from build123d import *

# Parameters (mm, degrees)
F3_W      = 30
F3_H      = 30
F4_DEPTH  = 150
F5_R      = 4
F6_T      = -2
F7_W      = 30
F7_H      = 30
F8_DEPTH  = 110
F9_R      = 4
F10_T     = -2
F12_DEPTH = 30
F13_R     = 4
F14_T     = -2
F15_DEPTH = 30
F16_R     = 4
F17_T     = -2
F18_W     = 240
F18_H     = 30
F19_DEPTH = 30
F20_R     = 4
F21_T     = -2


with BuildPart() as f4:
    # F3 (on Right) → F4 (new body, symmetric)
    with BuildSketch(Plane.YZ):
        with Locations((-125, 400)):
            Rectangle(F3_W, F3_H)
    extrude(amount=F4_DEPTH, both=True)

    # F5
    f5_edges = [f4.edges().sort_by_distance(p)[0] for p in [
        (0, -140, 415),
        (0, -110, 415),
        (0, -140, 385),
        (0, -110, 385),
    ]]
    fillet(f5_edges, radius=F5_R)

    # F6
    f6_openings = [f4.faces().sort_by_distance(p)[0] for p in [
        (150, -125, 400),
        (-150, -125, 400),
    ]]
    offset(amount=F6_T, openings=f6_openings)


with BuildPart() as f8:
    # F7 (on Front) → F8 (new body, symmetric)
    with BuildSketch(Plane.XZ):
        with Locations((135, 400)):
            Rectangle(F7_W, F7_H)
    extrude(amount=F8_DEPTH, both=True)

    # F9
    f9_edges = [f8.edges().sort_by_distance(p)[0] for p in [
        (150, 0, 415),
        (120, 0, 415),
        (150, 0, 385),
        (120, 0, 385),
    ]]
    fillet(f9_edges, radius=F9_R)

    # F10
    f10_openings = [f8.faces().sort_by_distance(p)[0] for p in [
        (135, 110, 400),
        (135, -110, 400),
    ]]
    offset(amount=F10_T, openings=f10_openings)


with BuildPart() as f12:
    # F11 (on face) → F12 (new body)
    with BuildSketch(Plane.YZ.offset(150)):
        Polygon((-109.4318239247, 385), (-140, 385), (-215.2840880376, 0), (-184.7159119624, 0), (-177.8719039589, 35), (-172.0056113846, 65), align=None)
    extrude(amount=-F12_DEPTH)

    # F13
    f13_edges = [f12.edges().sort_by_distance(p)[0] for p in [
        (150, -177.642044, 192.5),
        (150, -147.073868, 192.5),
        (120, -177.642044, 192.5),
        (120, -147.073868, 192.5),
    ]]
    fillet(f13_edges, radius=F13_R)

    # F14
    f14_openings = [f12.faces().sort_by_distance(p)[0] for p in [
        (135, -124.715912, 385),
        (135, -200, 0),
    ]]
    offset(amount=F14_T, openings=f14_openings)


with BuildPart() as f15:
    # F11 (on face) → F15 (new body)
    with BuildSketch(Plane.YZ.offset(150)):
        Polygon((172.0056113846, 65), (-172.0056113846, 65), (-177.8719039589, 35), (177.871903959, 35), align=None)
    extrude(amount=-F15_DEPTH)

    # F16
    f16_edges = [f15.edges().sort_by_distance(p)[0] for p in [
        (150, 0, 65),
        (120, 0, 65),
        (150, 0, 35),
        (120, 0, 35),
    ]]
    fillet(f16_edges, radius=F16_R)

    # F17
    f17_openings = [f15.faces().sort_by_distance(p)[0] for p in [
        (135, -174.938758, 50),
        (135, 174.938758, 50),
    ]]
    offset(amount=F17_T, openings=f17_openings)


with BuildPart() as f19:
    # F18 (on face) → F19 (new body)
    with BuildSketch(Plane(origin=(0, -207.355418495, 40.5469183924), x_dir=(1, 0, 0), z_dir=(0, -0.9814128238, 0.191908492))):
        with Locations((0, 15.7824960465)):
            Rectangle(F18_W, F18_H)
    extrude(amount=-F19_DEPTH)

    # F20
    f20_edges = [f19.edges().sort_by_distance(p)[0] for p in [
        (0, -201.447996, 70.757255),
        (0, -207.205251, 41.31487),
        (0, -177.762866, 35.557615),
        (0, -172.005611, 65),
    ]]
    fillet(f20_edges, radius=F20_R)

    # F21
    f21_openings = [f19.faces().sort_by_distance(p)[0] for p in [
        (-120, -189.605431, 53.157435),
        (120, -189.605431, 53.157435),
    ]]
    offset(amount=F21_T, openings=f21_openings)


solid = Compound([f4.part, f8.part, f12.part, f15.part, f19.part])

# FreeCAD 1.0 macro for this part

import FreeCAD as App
import Part
import Sketcher

V = App.Vector
Q = App.Units.Quantity


def edges_at(feature, points):
    """Names of the edges that pass closest to the given points."""
    edges = feature.Shape.Edges
    near = lambda p: min(range(len(edges)), key=lambda i: edges[i].distToShape(Part.Vertex(*p))[0])
    return sorted({f"Edge{near(p) + 1}" for p in points})


def faces_at(feature, points):
    """Names of the faces that lie closest to the given points."""
    faces = feature.Shape.Faces
    near = lambda p: min(range(len(faces)), key=lambda i: faces[i].distToShape(Part.Vertex(*p))[0])
    return sorted({f"Face{near(p) + 1}" for p in points})

doc = App.newDocument("Part")
body = doc.addObject("PartDesign::Body", "Body")

sketch1 = body.newObject("Sketcher::SketchObject", "Sketch")
sketch1.AttachmentSupport = (doc.getObject("YZ_Plane"), [""])
sketch1.MapMode = "FlatFace"
sketch1.addGeometry([
    Part.LineSegment(V(-140, 415, 0), V(-140, 385, 0)),
    Part.LineSegment(V(-140, 385, 0), V(-110, 385, 0)),
    Part.LineSegment(V(-110, 385, 0), V(-110, 415, 0)),
    Part.LineSegment(V(-110, 415, 0), V(-140, 415, 0)),
], False)
sketch1.addConstraint([
    Sketcher.Constraint("Coincident", 0, 2, 1, 1),
    Sketcher.Constraint("Coincident", 1, 2, 2, 1),
    Sketcher.Constraint("Coincident", 2, 2, 3, 1),
    Sketcher.Constraint("Coincident", 3, 2, 0, 1),
    Sketcher.Constraint("Vertical", 0),
    Sketcher.Constraint("Horizontal", 1),
    Sketcher.Constraint("Vertical", 2),
    Sketcher.Constraint("Horizontal", 3),
    Sketcher.Constraint("Equal", 3, 0),
    Sketcher.Constraint("DistanceX", 1, 1, 1, 2, Q("30 mm")),
    Sketcher.Constraint("DistanceX", 0, 2, -1, 1, Q("140 mm")),
    Sketcher.Constraint("DistanceY", -1, 1, 0, 2, Q("385 mm")),
])
pad1 = body.newObject("PartDesign::Pad", "Pad")
pad1.Profile = sketch1
pad1.Length = 300
pad1.Midplane = True
doc.recompute()

fillet = body.newObject("PartDesign::Fillet", "Fillet")
fillet.Base = (pad1, edges_at(pad1, [
    (0, -140, 415),
    (0, -110, 415),
    (0, -140, 385),
    (0, -110, 385),
]))
fillet.Radius = 4
doc.recompute()

thickness = body.newObject("PartDesign::Thickness", "Thickness")
thickness.Base = (fillet, faces_at(fillet, [(150, -125, 400), (-150, -125, 400)]))
thickness.Value = 2
thickness.Reversed = True
thickness.Join = "Arc"
body2 = doc.addObject("PartDesign::Body", "Body001")

sketch2 = body2.newObject("Sketcher::SketchObject", "Sketch001")
sketch2.AttachmentSupport = (doc.getObject("XZ_Plane001"), [""])
sketch2.MapMode = "FlatFace"
sketch2.addGeometry([
    Part.LineSegment(V(120, 415, 0), V(120, 385, 0)),
    Part.LineSegment(V(120, 385, 0), V(150, 385, 0)),
    Part.LineSegment(V(150, 385, 0), V(150, 415, 0)),
    Part.LineSegment(V(150, 415, 0), V(120, 415, 0)),
], False)
sketch2.addConstraint([
    Sketcher.Constraint("Coincident", 0, 2, 1, 1),
    Sketcher.Constraint("Coincident", 1, 2, 2, 1),
    Sketcher.Constraint("Coincident", 2, 2, 3, 1),
    Sketcher.Constraint("Coincident", 3, 2, 0, 1),
    Sketcher.Constraint("Vertical", 0),
    Sketcher.Constraint("Horizontal", 1),
    Sketcher.Constraint("Vertical", 2),
    Sketcher.Constraint("Horizontal", 3),
    Sketcher.Constraint("Equal", 3, 0),
    Sketcher.Constraint("DistanceX", 1, 1, 1, 2, Q("30 mm")),
    Sketcher.Constraint("DistanceX", -1, 1, 0, 2, Q("120 mm")),
    Sketcher.Constraint("DistanceY", -1, 1, 0, 2, Q("385 mm")),
])
pad2 = body2.newObject("PartDesign::Pad", "Pad001")
pad2.Profile = sketch2
pad2.Length = 220
pad2.Midplane = True
doc.recompute()

fillet2 = body2.newObject("PartDesign::Fillet", "Fillet001")
fillet2.Base = (pad2, edges_at(pad2, [
    (150, 0, 415),
    (120, 0, 415),
    (150, 0, 385),
    (120, 0, 385),
]))
fillet2.Radius = 4
doc.recompute()

thickness2 = body2.newObject("PartDesign::Thickness", "Thickness001")
thickness2.Base = (fillet2, faces_at(fillet2, [(135, 110, 400), (135, -110, 400)]))
thickness2.Value = 2
thickness2.Reversed = True
thickness2.Join = "Arc"
body3 = doc.addObject("PartDesign::Body", "Body002")

sketch3 = body3.newObject("Sketcher::SketchObject", "Sketch002")
sketch3.AttachmentSupport = (doc.getObject("YZ_Plane002"), [""])
sketch3.MapMode = "FlatFace"
sketch3.AttachmentOffset = App.Placement(V(0, 0, 150), App.Rotation())
sketch3.addGeometry([
    Part.LineSegment(V(-109, 385, 0), V(-140, 385, 0)),
    Part.LineSegment(V(-140, 385, 0), V(-215, 0, 0)),
    Part.LineSegment(V(-215, 0, 0), V(-185, 0, 0)),
    Part.LineSegment(V(-185, 0, 0), V(-178, 35, 0)),
    Part.LineSegment(V(-178, 35, 0), V(-172, 65, 0)),
    Part.LineSegment(V(-172, 65, 0), V(-109, 385, 0)),
], False)
sketch3.addConstraint([
    Sketcher.Constraint("Coincident", 0, 2, 1, 1),
    Sketcher.Constraint("Coincident", 1, 2, 2, 1),
    Sketcher.Constraint("Coincident", 2, 2, 3, 1),
    Sketcher.Constraint("Coincident", 3, 2, 4, 1),
    Sketcher.Constraint("Coincident", 4, 2, 5, 1),
    Sketcher.Constraint("Coincident", 5, 2, 0, 1),
    Sketcher.Constraint("Horizontal", 0),
    Sketcher.Constraint("Horizontal", 2),
    Sketcher.Constraint("PointOnObject", 1, 2, -1),
    Sketcher.Constraint("Parallel", 1, 3),
    Sketcher.Constraint("Parallel", 3, 4),
    Sketcher.Constraint("Parallel", 4, 5),
    Sketcher.Constraint("DistanceX", 0, 2, -1, 1, Q("140 mm")),
    Sketcher.Constraint("DistanceY", -1, 1, 0, 2, Q("385 mm")),
    Sketcher.Constraint("DistanceY", -1, 1, 3, 2, Q("35 mm")),
    Sketcher.Constraint("DistanceY", -1, 1, 4, 2, Q("65 mm")),
    Sketcher.Constraint("DistanceX", 2, 2, 4, 2, Q("12.710301 mm")),
    Sketcher.Constraint("DistanceX", 0, 2, 0, 1, Q("30.568176 mm")),
])
pad3 = body3.newObject("PartDesign::Pad", "Pad002")
pad3.Profile = sketch3
pad3.Length = 30
pad3.Reversed = True
doc.recompute()

fillet3 = body3.newObject("PartDesign::Fillet", "Fillet002")
fillet3.Base = (pad3, edges_at(pad3, [
    (150, -177.642, 192.5),
    (150, -140.719, 225),
    (120, -177.642, 192.5),
    (120, -140.719, 225),
]))
fillet3.Radius = 4
doc.recompute()

thickness3 = body3.newObject("PartDesign::Thickness", "Thickness002")
thickness3.Base = (fillet3, faces_at(fillet3, [(135, -124.716, 385), (135, -200, 0)]))
thickness3.Value = 2
thickness3.Reversed = True
thickness3.Join = "Arc"
body4 = doc.addObject("PartDesign::Body", "Body003")

sketch4 = body4.newObject("Sketcher::SketchObject", "Sketch003")
sketch4.AttachmentSupport = (doc.getObject("YZ_Plane003"), [""])
sketch4.MapMode = "FlatFace"
sketch4.AttachmentOffset = App.Placement(V(0, 0, 150), App.Rotation())
sketch4.addGeometry([
    Part.LineSegment(V(172, 65, 0), V(-172, 65, 0)),
    Part.LineSegment(V(-172, 65, 0), V(-178, 35, 0)),
    Part.LineSegment(V(-178, 35, 0), V(178, 35, 0)),
    Part.LineSegment(V(178, 35, 0), V(172, 65, 0)),
], False)
sketch4.addConstraint([
    Sketcher.Constraint("Coincident", 0, 2, 1, 1),
    Sketcher.Constraint("Coincident", 1, 2, 2, 1),
    Sketcher.Constraint("Coincident", 2, 2, 3, 1),
    Sketcher.Constraint("Coincident", 3, 2, 0, 1),
    Sketcher.Constraint("Horizontal", 0),
    Sketcher.Constraint("Horizontal", 2),
    Sketcher.Constraint("Equal", 1, 3),
    Sketcher.Constraint("DistanceY", -1, 1, 0, 2, Q("65 mm")),
    Sketcher.Constraint("DistanceY", -1, 1, 1, 2, Q("35 mm")),
    Sketcher.Constraint("DistanceX", 0, 2, 0, 1, Q("344.011223 mm")),
    Sketcher.Constraint("DistanceX", 2, 1, 2, 2, Q("355.743808 mm")),
    Sketcher.Constraint("DistanceX", 0, 2, -1, 1, Q("172.005611 mm")),
])
pad4 = body4.newObject("PartDesign::Pad", "Pad003")
pad4.Profile = sketch4
pad4.Length = 30
pad4.Reversed = True
doc.recompute()

fillet4 = body4.newObject("PartDesign::Fillet", "Fillet003")
fillet4.Base = (pad4, edges_at(pad4, [
    (150, 0, 65),
    (120, 0, 65),
    (150, 0, 35),
    (120, 0, 35),
]))
fillet4.Radius = 4
doc.recompute()

thickness4 = body4.newObject("PartDesign::Thickness", "Thickness003")
thickness4.Base = (fillet4, faces_at(fillet4, [(135, -174.939, 50), (135, 174.939, 50)]))
thickness4.Value = 2
thickness4.Reversed = True
thickness4.Join = "Arc"
body5 = doc.addObject("PartDesign::Body", "Body004")

sketch5 = body5.newObject("Sketcher::SketchObject", "Sketch004")
sketch5.Placement = App.Placement(V(0, -207.355418, 40.546918), App.Rotation(V(1, 0, 0), V(0, 0.191908492, 0.981412824), V(0, -0.981412824, 0.191908492), "ZXY"))
sketch5.addGeometry([
    Part.LineSegment(V(-120, 31, 0), V(-120, 1, 0)),
    Part.LineSegment(V(-120, 1, 0), V(120, 1, 0)),
    Part.LineSegment(V(120, 1, 0), V(120, 31, 0)),
    Part.LineSegment(V(120, 31, 0), V(-120, 31, 0)),
], False)
sketch5.addConstraint([
    Sketcher.Constraint("Coincident", 0, 2, 1, 1),
    Sketcher.Constraint("Coincident", 1, 2, 2, 1),
    Sketcher.Constraint("Coincident", 2, 2, 3, 1),
    Sketcher.Constraint("Coincident", 3, 2, 0, 1),
    Sketcher.Constraint("Vertical", 0),
    Sketcher.Constraint("Horizontal", 1),
    Sketcher.Constraint("Vertical", 2),
    Sketcher.Constraint("Horizontal", 3),
    Sketcher.Constraint("DistanceX", 1, 1, 1, 2, Q("240 mm")),
    Sketcher.Constraint("DistanceY", 0, 2, 0, 1, Q("30 mm")),
    Sketcher.Constraint("DistanceX", 0, 2, -1, 1, Q("120 mm")),
    Sketcher.Constraint("DistanceY", -1, 1, 0, 2, Q("0.782496 mm")),
])
pad5 = body5.newObject("PartDesign::Pad", "Pad004")
pad5.Profile = sketch5
pad5.Length = 30
pad5.Reversed = True
doc.recompute()

fillet5 = body5.newObject("PartDesign::Fillet", "Fillet004")
fillet5.Base = (pad5, edges_at(pad5, [
    (0, -201.448, 70.757),
    (0, -207.205, 41.315),
    (0, -177.763, 35.558),
    (0, -172.006, 65),
]))
fillet5.Radius = 4
doc.recompute()

thickness5 = body5.newObject("PartDesign::Thickness", "Thickness004")
thickness5.Base = (fillet5, faces_at(fillet5, [(-120, -189.605, 53.157), (120, -189.605, 53.157)]))
thickness5.Value = 2
thickness5.Reversed = True
thickness5.Join = "Arc"

doc.recompute()
